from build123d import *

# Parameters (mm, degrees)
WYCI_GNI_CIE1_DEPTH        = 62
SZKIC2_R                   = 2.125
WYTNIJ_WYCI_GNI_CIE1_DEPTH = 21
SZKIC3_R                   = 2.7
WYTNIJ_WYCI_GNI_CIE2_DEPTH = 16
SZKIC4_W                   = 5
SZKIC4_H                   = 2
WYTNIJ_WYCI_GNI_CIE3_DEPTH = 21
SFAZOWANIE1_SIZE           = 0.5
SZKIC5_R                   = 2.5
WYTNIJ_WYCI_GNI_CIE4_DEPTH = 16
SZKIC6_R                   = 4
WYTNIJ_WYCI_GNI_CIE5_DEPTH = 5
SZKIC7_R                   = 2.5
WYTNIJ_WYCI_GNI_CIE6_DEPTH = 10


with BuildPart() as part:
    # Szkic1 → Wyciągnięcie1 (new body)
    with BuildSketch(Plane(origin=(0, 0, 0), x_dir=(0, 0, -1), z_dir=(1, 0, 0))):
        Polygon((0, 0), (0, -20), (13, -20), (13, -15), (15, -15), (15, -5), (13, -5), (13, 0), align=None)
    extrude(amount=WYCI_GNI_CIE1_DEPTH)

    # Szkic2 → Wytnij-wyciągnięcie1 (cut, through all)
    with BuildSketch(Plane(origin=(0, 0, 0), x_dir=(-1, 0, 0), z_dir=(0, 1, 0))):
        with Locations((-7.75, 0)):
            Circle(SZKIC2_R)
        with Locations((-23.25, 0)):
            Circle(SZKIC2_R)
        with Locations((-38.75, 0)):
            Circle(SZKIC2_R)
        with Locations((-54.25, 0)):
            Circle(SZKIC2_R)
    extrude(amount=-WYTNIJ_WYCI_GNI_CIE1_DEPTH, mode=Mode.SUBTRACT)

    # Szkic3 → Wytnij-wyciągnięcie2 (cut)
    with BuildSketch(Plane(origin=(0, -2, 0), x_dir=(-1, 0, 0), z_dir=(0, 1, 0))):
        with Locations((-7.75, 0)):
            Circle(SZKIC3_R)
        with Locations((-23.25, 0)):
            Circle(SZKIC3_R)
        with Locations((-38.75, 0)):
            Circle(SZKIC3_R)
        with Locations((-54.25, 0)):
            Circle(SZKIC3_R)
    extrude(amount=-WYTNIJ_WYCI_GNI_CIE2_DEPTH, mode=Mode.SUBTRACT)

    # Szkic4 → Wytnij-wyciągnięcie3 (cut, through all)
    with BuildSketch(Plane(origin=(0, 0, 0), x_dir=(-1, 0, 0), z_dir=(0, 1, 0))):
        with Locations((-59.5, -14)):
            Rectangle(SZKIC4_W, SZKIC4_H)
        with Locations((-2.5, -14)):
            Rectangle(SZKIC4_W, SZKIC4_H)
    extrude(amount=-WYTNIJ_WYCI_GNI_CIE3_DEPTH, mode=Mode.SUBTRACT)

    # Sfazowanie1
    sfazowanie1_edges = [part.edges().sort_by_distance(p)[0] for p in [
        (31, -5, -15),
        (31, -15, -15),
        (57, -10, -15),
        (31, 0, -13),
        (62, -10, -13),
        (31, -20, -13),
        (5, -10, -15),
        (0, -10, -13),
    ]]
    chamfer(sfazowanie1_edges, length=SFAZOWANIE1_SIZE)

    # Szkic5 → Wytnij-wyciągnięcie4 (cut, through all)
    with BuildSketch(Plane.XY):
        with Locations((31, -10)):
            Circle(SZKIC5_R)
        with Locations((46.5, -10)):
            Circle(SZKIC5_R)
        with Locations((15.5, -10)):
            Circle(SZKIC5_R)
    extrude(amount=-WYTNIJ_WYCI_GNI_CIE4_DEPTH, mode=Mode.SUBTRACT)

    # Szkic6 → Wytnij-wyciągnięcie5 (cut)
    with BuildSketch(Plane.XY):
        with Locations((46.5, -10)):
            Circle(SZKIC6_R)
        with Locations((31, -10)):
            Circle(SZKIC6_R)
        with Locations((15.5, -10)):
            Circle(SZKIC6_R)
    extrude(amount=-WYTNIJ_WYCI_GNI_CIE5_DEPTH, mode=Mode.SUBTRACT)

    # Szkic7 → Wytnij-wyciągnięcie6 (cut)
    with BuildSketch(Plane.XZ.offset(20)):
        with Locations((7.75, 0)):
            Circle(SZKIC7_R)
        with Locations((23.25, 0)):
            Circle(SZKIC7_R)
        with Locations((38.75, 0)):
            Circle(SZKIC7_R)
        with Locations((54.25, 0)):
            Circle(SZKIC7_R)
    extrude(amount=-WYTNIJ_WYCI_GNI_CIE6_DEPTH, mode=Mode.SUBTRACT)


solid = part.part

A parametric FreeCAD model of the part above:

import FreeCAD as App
import Part
import Sketcher
from FreeCAD import Vector


def edges_at(feature, points):
    """Names of the edges that pass closest to the given points."""
    edges = feature.Shape.Edges
    near = lambda p: min(range(len(edges)), key=lambda i: edges[i].distToShape(Part.Vertex(*p))[0])
    return sorted({f"Edge{near(p) + 1}" for p in points})

doc = App.newDocument("Part")
body = doc.addObject("PartDesign::Body", "Body")

sketch1 = body.newObject("Sketcher::SketchObject", "Sketch")
sketch1.AttachmentSupport = (doc.getObject("YZ_Plane"), [""])
sketch1.MapMode = "FlatFace"
sketch1.addGeometry([
    Part.LineSegment(Vector(0, 0, 0), Vector(-20, 0, 0)),
    Part.LineSegment(Vector(-20, 0, 0), Vector(-20, -13, 0)),
    Part.LineSegment(Vector(-20, -13, 0), Vector(-15, -13, 0)),
    Part.LineSegment(Vector(-15, -13, 0), Vector(-15, -15, 0)),
    Part.LineSegment(Vector(-15, -15, 0), Vector(-5, -15, 0)),
    Part.LineSegment(Vector(-5, -15, 0), Vector(-5, -13, 0)),
    Part.LineSegment(Vector(-5, -13, 0), Vector(0, -13, 0)),
    Part.LineSegment(Vector(0, -13, 0), Vector(0, 0, 0)),
], False)
sketch1.addConstraint([
    Sketcher.Constraint("Coincident", 0, 2, 1, 1),
    Sketcher.Constraint("Coincident", 1, 2, 2, 1),
    Sketcher.Constraint("Coincident", 2, 2, 3, 1),
    Sketcher.Constraint("Coincident", 3, 2, 4, 1),
    Sketcher.Constraint("Coincident", 4, 2, 5, 1),
    Sketcher.Constraint("Coincident", 5, 2, 6, 1),
    Sketcher.Constraint("Coincident", 6, 2, 7, 1),
    Sketcher.Constraint("Coincident", 7, 2, 0, 1),
    Sketcher.Constraint("Horizontal", 0),
    Sketcher.Constraint("Vertical", 1),
    Sketcher.Constraint("Horizontal", 2),
    Sketcher.Constraint("Vertical", 3),
    Sketcher.Constraint("Horizontal", 4),
    Sketcher.Constraint("Vertical", 5),
    Sketcher.Constraint("Horizontal", 6),
    Sketcher.Constraint("Vertical", 7),
    Sketcher.Constraint("Coincident", 7, 2, -1, 1),
    Sketcher.Constraint("Horizontal", 2, 2, 5, 2),
    Sketcher.Constraint("Equal", 2, 6),
    Sketcher.Constraint("DistanceX", 0, 2, 0, 1, 20.0),
    Sketcher.Constraint("DistanceX", 2, 1, 2, 2, 5.0),
    Sketcher.Constraint("DistanceY", 1, 2, 1, 1, 13.0),
    Sketcher.Constraint("DistanceY", 3, 2, 3, 1, 2.0),
])
pad1 = body.newObject("PartDesign::Pad", "Pad")
pad1.Profile = sketch1
pad1.Length = 62

sketch2 = body.newObject("Sketcher::SketchObject", "Sketch001")
sketch2.AttachmentSupport = (doc.getObject("XZ_Plane"), [""])
sketch2.MapMode = "FlatFace"
sketch2.addGeometry([
    Part.Circle(Vector(7.8, 0, 0), Vector(0, 0, 1), 2.1),
    Part.Circle(Vector(23.2, 0, 0), Vector(0, 0, 1), 2.1),
    Part.Circle(Vector(38.8, 0, 0), Vector(0, 0, 1), 2.1),
    Part.Circle(Vector(54.2, 0, 0), Vector(0, 0, 1), 2.1),
], False)
sketch2.addConstraint([
    Sketcher.Constraint("Equal", 0, 1),
    Sketcher.Constraint("Equal", 1, 2),
    Sketcher.Constraint("Equal", 2, 3),
    Sketcher.Constraint("PointOnObject", 0, 3, -1),
    Sketcher.Constraint("PointOnObject", 1, 3, -1),
    Sketcher.Constraint("PointOnObject", 2, 3, -1),
    Sketcher.Constraint("PointOnObject", 3, 3, -1),
    Sketcher.Constraint("Diameter", 0, 4.25),
    Sketcher.Constraint("DistanceX", 0, 3, 2, 3, 31.0),
    Sketcher.Constraint("DistanceX", 1, 3, 3, 3, 31.0),
    Sketcher.Constraint("DistanceX", 0, 3, 1, 3, 15.5),
    Sketcher.Constraint("DistanceX", -1, 1, 0, 3, 7.75),
])
pocket1 = body.newObject("PartDesign::Pocket", "Pocket")
pocket1.Profile = sketch2
pocket1.Type = "ThroughAll"
pocket1.Reversed = True

sketch3 = body.newObject("Sketcher::SketchObject", "Sketch002")
sketch3.AttachmentSupport = (doc.getObject("XZ_Plane"), [""])
sketch3.MapMode = "FlatFace"
sketch3.AttachmentOffset = App.Placement(Vector(0, 0, 2), App.Rotation())
sketch3.addGeometry([
    Part.Circle(Vector(7.8, 0, 0), Vector(0, 0, 1), 2.7),
    Part.Circle(Vector(23.2, 0, 0), Vector(0, 0, 1), 2.7),
    Part.Circle(Vector(38.8, 0, 0), Vector(0, 0, 1), 2.7),
    Part.Circle(Vector(54.2, 0, 0), Vector(0, 0, 1), 2.7),
], False)
sketch3.addConstraint([
    Sketcher.Constraint("Equal", 0, 1),
    Sketcher.Constraint("Equal", 1, 2),
    Sketcher.Constraint("Equal", 2, 3),
    Sketcher.Constraint("PointOnObject", 0, 3, -1),
    Sketcher.Constraint("PointOnObject", 1, 3, -1),
    Sketcher.Constraint("PointOnObject", 2, 3, -1),
    Sketcher.Constraint("PointOnObject", 3, 3, -1),
    Sketcher.Constraint("Diameter", 0, 5.4),
    Sketcher.Constraint("DistanceX", 0, 3, 2, 3, 31.0),
    Sketcher.Constraint("DistanceX", 1, 3, 3, 3, 31.0),
    Sketcher.Constraint("DistanceX", 0, 3, 1, 3, 15.5),
    Sketcher.Constraint("DistanceX", -1, 1, 0, 3, 7.75),
])
pocket2 = body.newObject("PartDesign::Pocket", "Pocket001")
pocket2.Profile = sketch3
pocket2.Length = 16
pocket2.Reversed = True

sketch4 = body.newObject("Sketcher::SketchObject", "Sketch003")
sketch4.AttachmentSupport = (doc.getObject("XZ_Plane"), [""])
sketch4.MapMode = "FlatFace"
sketch4.addGeometry([
    Part.LineSegment(Vector(62, -13, 0), Vector(62, -15, 0)),
    Part.LineSegment(Vector(62, -15, 0), Vector(57, -15, 0)),
    Part.LineSegment(Vector(57, -15, 0), Vector(57, -13, 0)),
    Part.LineSegment(Vector(57, -13, 0), Vector(62, -13, 0)),
    Part.LineSegment(Vector(5, -13, 0), Vector(5, -15, 0)),
    Part.LineSegment(Vector(5, -15, 0), Vector(0, -15, 0)),
    Part.LineSegment(Vector(0, -15, 0), Vector(0, -13, 0)),
    Part.LineSegment(Vector(0, -13, 0), Vector(5, -13, 0)),
], False)
sketch4.addConstraint([
    Sketcher.Constraint("Coincident", 0, 2, 1, 1),
    Sketcher.Constraint("Coincident", 1, 2, 2, 1),
    Sketcher.Constraint("Coincident", 2, 2, 3, 1),
    Sketcher.Constraint("Coincident", 3, 2, 0, 1),
    Sketcher.Constraint("Coincident", 4, 2, 5, 1),
    Sketcher.Constraint("Coincident", 5, 2, 6, 1),
    Sketcher.Constraint("Coincident", 6, 2, 7, 1),
    Sketcher.Constraint("Coincident", 7, 2, 4, 1),
    Sketcher.Constraint("Vertical", 0),
    Sketcher.Constraint("Horizontal", 1),
    Sketcher.Constraint("Vertical", 2),
    Sketcher.Constraint("Horizontal", 3),
    Sketcher.Constraint("Vertical", 4),
    Sketcher.Constraint("Horizontal", 5),
    Sketcher.Constraint("Vertical", 6),
    Sketcher.Constraint("Horizontal", 7),
    Sketcher.Constraint("PointOnObject", 5, 2, -2),
    Sketcher.Constraint("Horizontal", 1, 2, 4, 2),
    Sketcher.Constraint("Horizontal", 3, 2, 6, 2),
    Sketcher.Constraint("Equal", 3, 5),
    Sketcher.Constraint("DistanceX", 1, 2, 1, 1, 5.0),
    Sketcher.Constraint("DistanceY", 0, 2, 0, 1, 2.0),
    Sketcher.Constraint("DistanceX", -1, 1, 0, 2, 62.0),
    Sketcher.Constraint("DistanceY", 0, 2, -1, 1, 15.0),
])
pocket3 = body.newObject("PartDesign::Pocket", "Pocket002")
pocket3.Profile = sketch4
pocket3.Type = "ThroughAll"
pocket3.Reversed = True
doc.recompute()

chamfer = body.newObject("PartDesign::Chamfer", "Chamfer")
chamfer.Base = (pocket3, edges_at(pocket3, [
    (31, -5, -15),
    (31, -15, -15),
    (57, -10, -15),
    (31, 0, -13),
    (62, -10, -13),
    (31, -20, -13),
    (5, -10, -15),
    (0, -10, -13),
]))
chamfer.Size = 0.5

sketch5 = body.newObject("Sketcher::SketchObject", "Sketch004")
sketch5.AttachmentSupport = (doc.getObject("XY_Plane"), [""])
sketch5.MapMode = "FlatFace"
sketch5.addGeometry([
    Part.Circle(Vector(31, -10, 0), Vector(0, 0, 1), 2.5),
    Part.Circle(Vector(46.5, -10, 0), Vector(0, 0, 1), 2.5),
    Part.Circle(Vector(15.5, -10, 0), Vector(0, 0, 1), 2.5),
], False)
sketch5.addConstraint([
    Sketcher.Constraint("Equal", 0, 1),
    Sketcher.Constraint("Equal", 1, 2),
    Sketcher.Constraint("Horizontal", 0, 3, 1, 3),
    Sketcher.Constraint("Horizontal", 1, 3, 2, 3),
    Sketcher.Constraint("Diameter", 0, 5.0),
    Sketcher.Constraint("DistanceX", -1, 1, 0, 3, 31.0),
    Sketcher.Constraint("DistanceY", 0, 3, -1, 1, 10.0),
    Sketcher.Constraint("DistanceX", 2, 3, 1, 3, 31.0),
    Sketcher.Constraint("DistanceX", -1, 1, 1, 3, 46.5),
])
pocket4 = body.newObject("PartDesign::Pocket", "Pocket003")
pocket4.Profile = sketch5
pocket4.Type = "ThroughAll"

sketch6 = body.newObject("Sketcher::SketchObject", "Sketch005")
sketch6.AttachmentSupport = (doc.getObject("XY_Plane"), [""])
sketch6.MapMode = "FlatFace"
sketch6.addGeometry([
    Part.Circle(Vector(46.5, -10, 0), Vector(0, 0, 1), 4),
    Part.Circle(Vector(31, -10, 0), Vector(0, 0, 1), 4),
    Part.Circle(Vector(15.5, -10, 0), Vector(0, 0, 1), 4),
], False)
sketch6.addConstraint([
    Sketcher.Constraint("Equal", 0, 1),
    Sketcher.Constraint("Equal", 1, 2),
    Sketcher.Constraint("Horizontal", 0, 3, 1, 3),
    Sketcher.Constraint("Horizontal", 1, 3, 2, 3),
    Sketcher.Constraint("Diameter", 0, 8.0),
    Sketcher.Constraint("DistanceY", 0, 3, -1, 1, 10.0),
    Sketcher.Constraint("DistanceX", -1, 1, 1, 3, 31.0),
    Sketcher.Constraint("DistanceX", 2, 3, 0, 3, 31.0),
    Sketcher.Constraint("DistanceX", -1, 1, 0, 3, 46.5),
])
pocket5 = body.newObject("PartDesign::Pocket", "Pocket004")
pocket5.Profile = sketch6
pocket5.Length = 5

sketch7 = body.newObject("Sketcher::SketchObject", "Sketch006")
sketch7.AttachmentSupport = (doc.getObject("XZ_Plane"), [""])
sketch7.MapMode = "FlatFace"
sketch7.AttachmentOffset = App.Placement(Vector(0, 0, 20), App.Rotation())
sketch7.addGeometry([
    Part.Circle(Vector(7.8, 0, 0), Vector(0, 0, 1), 2.5),
    Part.Circle(Vector(23.2, 0, 0), Vector(0, 0, 1), 2.5),
    Part.Circle(Vector(38.8, 0, 0), Vector(0, 0, 1), 2.5),
    Part.Circle(Vector(54.2, 0, 0), Vector(0, 0, 1), 2.5),
], False)
sketch7.addConstraint([
    Sketcher.Constraint("Equal", 0, 1),
    Sketcher.Constraint("Equal", 1, 2),
    Sketcher.Constraint("Equal", 2, 3),
    Sketcher.Constraint("PointOnObject", 0, 3, -1),
    Sketcher.Constraint("PointOnObject", 1, 3, -1),
    Sketcher.Constraint("PointOnObject", 2, 3, -1),
    Sketcher.Constraint("PointOnObject", 3, 3, -1),
    Sketcher.Constraint("Diameter", 0, 5.0),
    Sketcher.Constraint("DistanceX", 0, 3, 2, 3, 31.0),
    Sketcher.Constraint("DistanceX", 1, 3, 3, 3, 31.0),
    Sketcher.Constraint("DistanceX", 0, 3, 1, 3, 15.5),
    Sketcher.Constraint("DistanceX", -1, 1, 0, 3, 7.75),
])
pocket6 = body.newObject("PartDesign::Pocket", "Pocket005")
pocket6.Profile = sketch7
pocket6.Length = 10

doc.recompute()
